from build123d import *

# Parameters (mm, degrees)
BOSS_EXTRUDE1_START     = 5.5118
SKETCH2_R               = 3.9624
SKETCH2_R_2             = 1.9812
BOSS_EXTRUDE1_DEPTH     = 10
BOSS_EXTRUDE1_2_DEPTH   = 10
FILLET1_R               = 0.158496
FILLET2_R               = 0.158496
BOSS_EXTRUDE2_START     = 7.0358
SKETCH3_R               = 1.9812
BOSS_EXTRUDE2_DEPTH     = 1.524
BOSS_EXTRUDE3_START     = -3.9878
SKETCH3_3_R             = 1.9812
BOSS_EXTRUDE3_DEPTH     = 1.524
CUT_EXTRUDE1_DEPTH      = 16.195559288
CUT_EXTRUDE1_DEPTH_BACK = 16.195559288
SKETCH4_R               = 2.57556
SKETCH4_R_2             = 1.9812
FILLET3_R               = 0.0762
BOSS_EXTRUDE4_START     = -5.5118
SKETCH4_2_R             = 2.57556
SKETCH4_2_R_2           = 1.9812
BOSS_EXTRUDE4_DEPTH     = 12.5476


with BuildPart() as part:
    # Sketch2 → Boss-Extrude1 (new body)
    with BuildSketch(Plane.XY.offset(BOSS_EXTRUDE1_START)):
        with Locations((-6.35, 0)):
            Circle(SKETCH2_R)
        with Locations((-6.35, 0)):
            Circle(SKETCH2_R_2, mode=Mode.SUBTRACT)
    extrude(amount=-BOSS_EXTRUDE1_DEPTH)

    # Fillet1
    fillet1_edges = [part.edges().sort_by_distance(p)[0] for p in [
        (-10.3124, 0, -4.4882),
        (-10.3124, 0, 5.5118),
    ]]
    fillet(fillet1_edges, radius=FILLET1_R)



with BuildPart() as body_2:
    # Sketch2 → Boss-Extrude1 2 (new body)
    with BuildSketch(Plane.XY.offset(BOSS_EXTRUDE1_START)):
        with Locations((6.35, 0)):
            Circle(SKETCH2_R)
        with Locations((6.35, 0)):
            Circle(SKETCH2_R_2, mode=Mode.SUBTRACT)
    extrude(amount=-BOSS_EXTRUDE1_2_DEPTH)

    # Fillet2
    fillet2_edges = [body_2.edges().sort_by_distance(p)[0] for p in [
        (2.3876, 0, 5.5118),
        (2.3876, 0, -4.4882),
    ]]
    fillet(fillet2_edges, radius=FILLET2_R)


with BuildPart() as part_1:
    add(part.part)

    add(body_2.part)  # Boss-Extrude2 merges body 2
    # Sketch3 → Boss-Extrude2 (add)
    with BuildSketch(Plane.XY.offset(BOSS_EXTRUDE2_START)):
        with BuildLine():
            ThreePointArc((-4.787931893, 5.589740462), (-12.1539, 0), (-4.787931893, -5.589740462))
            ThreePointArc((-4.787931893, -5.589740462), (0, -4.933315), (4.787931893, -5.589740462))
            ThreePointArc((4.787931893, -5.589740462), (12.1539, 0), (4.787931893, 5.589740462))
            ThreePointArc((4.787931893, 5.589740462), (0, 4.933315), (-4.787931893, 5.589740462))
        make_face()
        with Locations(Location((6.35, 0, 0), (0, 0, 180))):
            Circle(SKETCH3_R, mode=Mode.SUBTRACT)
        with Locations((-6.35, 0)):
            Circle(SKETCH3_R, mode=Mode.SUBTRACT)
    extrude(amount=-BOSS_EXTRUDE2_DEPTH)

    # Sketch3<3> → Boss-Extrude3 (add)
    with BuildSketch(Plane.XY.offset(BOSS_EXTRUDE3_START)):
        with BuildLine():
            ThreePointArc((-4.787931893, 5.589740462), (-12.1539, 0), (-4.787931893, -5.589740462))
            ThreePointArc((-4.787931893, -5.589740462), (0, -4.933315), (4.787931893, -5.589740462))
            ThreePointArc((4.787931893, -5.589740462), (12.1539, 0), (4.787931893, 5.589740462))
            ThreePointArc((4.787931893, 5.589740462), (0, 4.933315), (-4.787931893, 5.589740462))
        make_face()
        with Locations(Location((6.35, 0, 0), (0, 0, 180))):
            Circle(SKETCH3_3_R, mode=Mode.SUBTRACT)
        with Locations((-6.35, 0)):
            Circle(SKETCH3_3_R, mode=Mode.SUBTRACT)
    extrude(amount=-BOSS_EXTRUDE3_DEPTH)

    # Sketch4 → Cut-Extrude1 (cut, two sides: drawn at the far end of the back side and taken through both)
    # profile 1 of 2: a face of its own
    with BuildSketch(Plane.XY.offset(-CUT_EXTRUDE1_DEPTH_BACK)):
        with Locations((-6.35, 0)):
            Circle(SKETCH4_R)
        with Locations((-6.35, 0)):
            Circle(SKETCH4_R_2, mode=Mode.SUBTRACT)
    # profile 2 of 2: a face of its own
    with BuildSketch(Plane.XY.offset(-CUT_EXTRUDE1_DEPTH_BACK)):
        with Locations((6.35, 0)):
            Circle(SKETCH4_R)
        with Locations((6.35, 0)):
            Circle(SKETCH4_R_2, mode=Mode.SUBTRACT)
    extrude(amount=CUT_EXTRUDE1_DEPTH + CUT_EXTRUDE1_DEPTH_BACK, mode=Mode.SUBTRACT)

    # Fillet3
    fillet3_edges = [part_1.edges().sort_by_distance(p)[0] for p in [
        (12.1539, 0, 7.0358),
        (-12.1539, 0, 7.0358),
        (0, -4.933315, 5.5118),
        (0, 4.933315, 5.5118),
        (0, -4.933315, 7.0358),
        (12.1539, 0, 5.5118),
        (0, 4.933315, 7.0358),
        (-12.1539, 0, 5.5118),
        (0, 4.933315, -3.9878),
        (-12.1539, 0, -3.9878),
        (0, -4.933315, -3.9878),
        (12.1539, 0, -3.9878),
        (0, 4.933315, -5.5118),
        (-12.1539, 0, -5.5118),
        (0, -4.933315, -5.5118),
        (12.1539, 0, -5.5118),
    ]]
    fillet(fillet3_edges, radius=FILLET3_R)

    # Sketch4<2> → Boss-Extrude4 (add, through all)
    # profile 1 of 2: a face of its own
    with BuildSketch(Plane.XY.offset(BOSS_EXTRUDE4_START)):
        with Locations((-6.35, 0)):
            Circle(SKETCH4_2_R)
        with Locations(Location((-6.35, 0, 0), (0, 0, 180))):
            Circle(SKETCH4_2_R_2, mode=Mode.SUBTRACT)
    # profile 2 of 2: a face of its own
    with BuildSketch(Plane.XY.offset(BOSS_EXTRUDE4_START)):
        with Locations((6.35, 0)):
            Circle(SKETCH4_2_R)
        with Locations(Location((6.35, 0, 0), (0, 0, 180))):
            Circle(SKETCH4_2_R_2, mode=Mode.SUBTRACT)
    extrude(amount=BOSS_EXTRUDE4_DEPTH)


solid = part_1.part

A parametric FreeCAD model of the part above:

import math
import FreeCAD as App
import Part
import Sketcher

V = App.Vector
Q = App.Units.Quantity


def edges_at(feature, points):
    """Names of the edges that pass closest to the given points."""
    edges = feature.Shape.Edges
    near = lambda p: min(range(len(edges)), key=lambda i: edges[i].distToShape(Part.Vertex(*p))[0])
    return sorted({f"Edge{near(p) + 1}" for p in points})

doc = App.newDocument("Part")
body = doc.addObject("PartDesign::Body", "Body")

# Sketch on XY plane
sketch1 = body.newObject("Sketcher::SketchObject", "Sketch")
sketch1.AttachmentSupport = (doc.getObject("XY_Plane"), [""])
sketch1.MapMode = "FlatFace"
sketch1.AttachmentOffset = App.Placement(V(0, 0, 0.217 * 25.4), App.Rotation())
sketch1.addGeometry([
    Part.Circle(V(-6.3, 0, 0), V(0, 0, 1), 4),
    Part.Circle(V(-6.3, 0, 0), V(0, 0, 1), 2),
], False)
sketch1.addConstraint([
    Sketcher.Constraint("Coincident", 1, 3, 0, 3),
    Sketcher.Constraint("PointOnObject", 0, 3, -1),
    Sketcher.Constraint("Diameter", 0, Q("0.312 in")),
    Sketcher.Constraint("Diameter", 1, Q("0.156 in")),
    Sketcher.Constraint("DistanceX", 0, 3, -1, 1, Q("0.25 in")),
])
pad1 = body.newObject("PartDesign::Pad", "Pad")
pad1.Profile = sketch1
pad1.Length = 10
pad1.Reversed = True
doc.recompute()

fillet = body.newObject("PartDesign::Fillet", "Fillet")
fillet.Base = (pad1, edges_at(pad1, [(-10.312, 0, -4.488), (-10.312, 0, 5.512)]))
fillet.Radius = 0.158496
body2 = doc.addObject("PartDesign::Body", "Body001")

# Sketch on XY plane
sketch2 = body2.newObject("Sketcher::SketchObject", "Sketch001")
sketch2.AttachmentSupport = (doc.getObject("XY_Plane001"), [""])
sketch2.MapMode = "FlatFace"
sketch2.AttachmentOffset = App.Placement(V(0, 0, 0.217 * 25.4), App.Rotation())
sketch2.addGeometry([
    Part.Circle(V(6.3, 0, 0), V(0, 0, 1), 4),
    Part.Circle(V(6.3, 0, 0), V(0, 0, 1), 2),
], False)
sketch2.addConstraint([
    Sketcher.Constraint("Coincident", 1, 3, 0, 3),
    Sketcher.Constraint("PointOnObject", 0, 3, -1),
    Sketcher.Constraint("Diameter", 0, Q("0.312 in")),
    Sketcher.Constraint("Diameter", 1, Q("0.156 in")),
    Sketcher.Constraint("DistanceX", -1, 1, 0, 3, Q("0.25 in")),
])
pad2 = body2.newObject("PartDesign::Pad", "Pad001")
pad2.Profile = sketch2
pad2.Length = 10
pad2.Reversed = True
doc.recompute()

fillet2 = body2.newObject("PartDesign::Fillet", "Fillet001")
fillet2.Base = (pad2, edges_at(pad2, [(2.388, 0, 5.512), (2.388, 0, -4.488)]))
fillet2.Radius = 0.158496
body.AllowCompound = True
doc.recompute()

boolean = body.newObject("PartDesign::Boolean", "Boolean")
boolean.Type = "Fuse"
boolean.addObjects([body2])

# Sketch on XY plane
sketch3 = body.newObject("Sketcher::SketchObject", "Sketch002")
sketch3.AttachmentSupport = (doc.getObject("XY_Plane"), [""])
sketch3.MapMode = "FlatFace"
sketch3.AttachmentOffset = App.Placement(V(0, 0, 0.277 * 25.4), App.Rotation())
sketch3.addGeometry([
    Part.ArcOfCircle(Part.Circle(V(-6.3, 0, 0), V(0, 0, 1), 5.8), math.radians(74), math.radians(286)),  # 0
    Part.ArcOfCircle(Part.Circle(V(0, -22.7, 0), V(0, 0, 1), 17.8), math.radians(74), math.radians(106)),  # 1
    Part.ArcOfCircle(Part.Circle(V(6.3, 0, 0), V(0, 0, 1), 5.8), math.radians(-106), math.radians(106)),  # 2
    Part.ArcOfCircle(Part.Circle(V(0, 22.7, 0), V(0, 0, 1), 17.8), math.radians(-106), math.radians(-74)),  # 3
    Part.Circle(V(-6.3, 0, 0), V(0, 0, 1), 2),  # 4
    Part.Circle(V(6.3, 0, 0), V(0, 0, 1), 2),  # 5
], False)
sketch3.addConstraint([
    Sketcher.Constraint("Tangent", 0, 2, 1, 2),
    Sketcher.Constraint("Tangent", 1, 1, 2, 1),
    Sketcher.Constraint("Tangent", 2, 2, 3, 2),
    Sketcher.Constraint("Tangent", 3, 1, 0, 1),
    Sketcher.Constraint("Coincident", 4, 3, 0, 3),
    Sketcher.Constraint("Coincident", 5, 3, 2, 3),
    Sketcher.Constraint("Equal", 0, 2),
    Sketcher.Constraint("Equal", 1, 3),
    Sketcher.Constraint("Equal", 4, 5),
    Sketcher.Constraint("Symmetric", 0, 3, 2, 3, -1, 1),
    Sketcher.Constraint("PointOnObject", 0, 3, -1),
    Sketcher.Constraint("Diameter", 4, Q("0.156 in")),
    Sketcher.Constraint("Radius", 0, Q("0.2285 in")),
    Sketcher.Constraint("DistanceX", 0, 3, 2, 3, Q("0.5 in")),
    Sketcher.Constraint("Radius", 1, Q("17.789671 mm")),
])
pad3 = body.newObject("PartDesign::Pad", "Pad002")
pad3.Profile = sketch3
pad3.Length = Q("0.06 in")
pad3.Reversed = True

# Sketch on XY plane
sketch4 = body.newObject("Sketcher::SketchObject", "Sketch003")
sketch4.AttachmentSupport = (doc.getObject("XY_Plane"), [""])
sketch4.MapMode = "FlatFace"
sketch4.AttachmentOffset = App.Placement(V(0, 0, -0.157 * 25.4), App.Rotation())
sketch4.addGeometry([
    Part.ArcOfCircle(Part.Circle(V(-6.3, 0, 0), V(0, 0, 1), 5.8), math.radians(74), math.radians(286)),  # 0
    Part.ArcOfCircle(Part.Circle(V(0, -22.7, 0), V(0, 0, 1), 17.8), math.radians(74), math.radians(106)),  # 1
    Part.ArcOfCircle(Part.Circle(V(6.3, 0, 0), V(0, 0, 1), 5.8), math.radians(-106), math.radians(106)),  # 2
    Part.ArcOfCircle(Part.Circle(V(0, 22.7, 0), V(0, 0, 1), 17.8), math.radians(-106), math.radians(-74)),  # 3
    Part.Circle(V(-6.3, 0, 0), V(0, 0, 1), 2),  # 4
    Part.Circle(V(6.3, 0, 0), V(0, 0, 1), 2),  # 5
], False)
sketch4.addConstraint([
    Sketcher.Constraint("Tangent", 0, 2, 1, 2),
    Sketcher.Constraint("Tangent", 1, 1, 2, 1),
    Sketcher.Constraint("Tangent", 2, 2, 3, 2),
    Sketcher.Constraint("Tangent", 3, 1, 0, 1),
    Sketcher.Constraint("Coincident", 4, 3, 0, 3),
    Sketcher.Constraint("Coincident", 5, 3, 2, 3),
    Sketcher.Constraint("Equal", 0, 2),
    Sketcher.Constraint("Equal", 1, 3),
    Sketcher.Constraint("Equal", 4, 5),
    Sketcher.Constraint("Symmetric", 0, 3, 2, 3, -1, 1),
    Sketcher.Constraint("PointOnObject", 0, 3, -1),
    Sketcher.Constraint("Diameter", 4, Q("0.156 in")),
    Sketcher.Constraint("Radius", 0, Q("0.2285 in")),
    Sketcher.Constraint("DistanceX", 0, 3, 2, 3, Q("0.5 in")),
    Sketcher.Constraint("Radius", 1, Q("17.789671 mm")),
])
pad4 = body.newObject("PartDesign::Pad", "Pad003")
pad4.Profile = sketch4
pad4.Length = Q("0.06 in")
pad4.Reversed = True

# Sketch on XY plane
sketch5 = body.newObject("Sketcher::SketchObject", "Sketch004")
sketch5.AttachmentSupport = (doc.getObject("XY_Plane"), [""])
sketch5.MapMode = "FlatFace"
sketch5.addGeometry([
    Part.Circle(V(-6.3, 0, 0), V(0, 0, 1), 2.6),
    Part.Circle(V(-6.3, 0, 0), V(0, 0, 1), 2),
    Part.Circle(V(6.3, 0, 0), V(0, 0, 1), 2.6),
    Part.Circle(V(6.3, 0, 0), V(0, 0, 1), 2),
], False)
sketch5.addConstraint([
    Sketcher.Constraint("Coincident", 1, 3, 0, 3),
    Sketcher.Constraint("Coincident", 3, 3, 2, 3),
    Sketcher.Constraint("Equal", 0, 2),
    Sketcher.Constraint("Equal", 1, 3),
    Sketcher.Constraint("Symmetric", 0, 3, 2, 3, -1, 1),
    Sketcher.Constraint("PointOnObject", 0, 3, -1),
    Sketcher.Constraint("Diameter", 1, Q("0.156 in")),
    Sketcher.Constraint("Diameter", 0, Q("0.2028 in")),
    Sketcher.Constraint("DistanceX", 0, 3, 2, 3, Q("0.5 in")),
])
pocket1 = body.newObject("PartDesign::Pocket", "Pocket")
pocket1.Profile = sketch5
pocket1.Type = "ThroughAll"
pocket1.Midplane = True
doc.recompute()

fillet3 = body.newObject("PartDesign::Fillet", "Fillet002")
fillet3.Base = (pocket1, edges_at(pocket1, [
    (12.154, 0, 7.036),
    (-12.154, 0, 7.036),
    (0, -4.933, 5.512),
    (0, 4.933, 5.512),
    (0, -4.933, 7.036),
    (12.154, 0, 5.512),
    (0, 4.933, 7.036),
    (-12.154, 0, 5.512),
    (0, 4.933, -3.988),
    (-12.154, 0, -3.988),
    (0, -4.933, -3.988),
    (12.154, 0, -3.988),
    (0, 4.933, -5.512),
    (-12.154, 0, -5.512),
    (0, -4.933, -5.512),
    (12.154, 0, -5.512),
]))
fillet3.Radius = Q("0.003 in")

# Sketch on XY plane
sketch6 = body.newObject("Sketcher::SketchObject", "Sketch005")
sketch6.AttachmentSupport = (doc.getObject("XY_Plane"), [""])
sketch6.MapMode = "FlatFace"
sketch6.AttachmentOffset = App.Placement(V(0, 0, -0.217 * 25.4), App.Rotation())
sketch6.addGeometry([
    Part.Circle(V(-6.3, 0, 0), V(0, 0, 1), 2.6),
    Part.Circle(V(-6.3, 0, 0), V(0, 0, 1), 2),
    Part.Circle(V(6.3, 0, 0), V(0, 0, 1), 2.6),
    Part.Circle(V(6.3, 0, 0), V(0, 0, 1), 2),
], False)
sketch6.addConstraint([
    Sketcher.Constraint("Coincident", 1, 3, 0, 3),
    Sketcher.Constraint("Coincident", 3, 3, 2, 3),
    Sketcher.Constraint("Equal", 0, 2),
    Sketcher.Constraint("Equal", 1, 3),
    Sketcher.Constraint("Symmetric", 0, 3, 2, 3, -1, 1),
    Sketcher.Constraint("PointOnObject", 0, 3, -1),
    Sketcher.Constraint("Diameter", 1, Q("0.156 in")),
    Sketcher.Constraint("Diameter", 0, Q("0.2028 in")),
    Sketcher.Constraint("DistanceX", 0, 3, 2, 3, Q("0.5 in")),
])
pad5 = body.newObject("PartDesign::Pad", "Pad004")
pad5.Profile = sketch6
pad5.Length = Q("0.494 in")

doc.recompute()
